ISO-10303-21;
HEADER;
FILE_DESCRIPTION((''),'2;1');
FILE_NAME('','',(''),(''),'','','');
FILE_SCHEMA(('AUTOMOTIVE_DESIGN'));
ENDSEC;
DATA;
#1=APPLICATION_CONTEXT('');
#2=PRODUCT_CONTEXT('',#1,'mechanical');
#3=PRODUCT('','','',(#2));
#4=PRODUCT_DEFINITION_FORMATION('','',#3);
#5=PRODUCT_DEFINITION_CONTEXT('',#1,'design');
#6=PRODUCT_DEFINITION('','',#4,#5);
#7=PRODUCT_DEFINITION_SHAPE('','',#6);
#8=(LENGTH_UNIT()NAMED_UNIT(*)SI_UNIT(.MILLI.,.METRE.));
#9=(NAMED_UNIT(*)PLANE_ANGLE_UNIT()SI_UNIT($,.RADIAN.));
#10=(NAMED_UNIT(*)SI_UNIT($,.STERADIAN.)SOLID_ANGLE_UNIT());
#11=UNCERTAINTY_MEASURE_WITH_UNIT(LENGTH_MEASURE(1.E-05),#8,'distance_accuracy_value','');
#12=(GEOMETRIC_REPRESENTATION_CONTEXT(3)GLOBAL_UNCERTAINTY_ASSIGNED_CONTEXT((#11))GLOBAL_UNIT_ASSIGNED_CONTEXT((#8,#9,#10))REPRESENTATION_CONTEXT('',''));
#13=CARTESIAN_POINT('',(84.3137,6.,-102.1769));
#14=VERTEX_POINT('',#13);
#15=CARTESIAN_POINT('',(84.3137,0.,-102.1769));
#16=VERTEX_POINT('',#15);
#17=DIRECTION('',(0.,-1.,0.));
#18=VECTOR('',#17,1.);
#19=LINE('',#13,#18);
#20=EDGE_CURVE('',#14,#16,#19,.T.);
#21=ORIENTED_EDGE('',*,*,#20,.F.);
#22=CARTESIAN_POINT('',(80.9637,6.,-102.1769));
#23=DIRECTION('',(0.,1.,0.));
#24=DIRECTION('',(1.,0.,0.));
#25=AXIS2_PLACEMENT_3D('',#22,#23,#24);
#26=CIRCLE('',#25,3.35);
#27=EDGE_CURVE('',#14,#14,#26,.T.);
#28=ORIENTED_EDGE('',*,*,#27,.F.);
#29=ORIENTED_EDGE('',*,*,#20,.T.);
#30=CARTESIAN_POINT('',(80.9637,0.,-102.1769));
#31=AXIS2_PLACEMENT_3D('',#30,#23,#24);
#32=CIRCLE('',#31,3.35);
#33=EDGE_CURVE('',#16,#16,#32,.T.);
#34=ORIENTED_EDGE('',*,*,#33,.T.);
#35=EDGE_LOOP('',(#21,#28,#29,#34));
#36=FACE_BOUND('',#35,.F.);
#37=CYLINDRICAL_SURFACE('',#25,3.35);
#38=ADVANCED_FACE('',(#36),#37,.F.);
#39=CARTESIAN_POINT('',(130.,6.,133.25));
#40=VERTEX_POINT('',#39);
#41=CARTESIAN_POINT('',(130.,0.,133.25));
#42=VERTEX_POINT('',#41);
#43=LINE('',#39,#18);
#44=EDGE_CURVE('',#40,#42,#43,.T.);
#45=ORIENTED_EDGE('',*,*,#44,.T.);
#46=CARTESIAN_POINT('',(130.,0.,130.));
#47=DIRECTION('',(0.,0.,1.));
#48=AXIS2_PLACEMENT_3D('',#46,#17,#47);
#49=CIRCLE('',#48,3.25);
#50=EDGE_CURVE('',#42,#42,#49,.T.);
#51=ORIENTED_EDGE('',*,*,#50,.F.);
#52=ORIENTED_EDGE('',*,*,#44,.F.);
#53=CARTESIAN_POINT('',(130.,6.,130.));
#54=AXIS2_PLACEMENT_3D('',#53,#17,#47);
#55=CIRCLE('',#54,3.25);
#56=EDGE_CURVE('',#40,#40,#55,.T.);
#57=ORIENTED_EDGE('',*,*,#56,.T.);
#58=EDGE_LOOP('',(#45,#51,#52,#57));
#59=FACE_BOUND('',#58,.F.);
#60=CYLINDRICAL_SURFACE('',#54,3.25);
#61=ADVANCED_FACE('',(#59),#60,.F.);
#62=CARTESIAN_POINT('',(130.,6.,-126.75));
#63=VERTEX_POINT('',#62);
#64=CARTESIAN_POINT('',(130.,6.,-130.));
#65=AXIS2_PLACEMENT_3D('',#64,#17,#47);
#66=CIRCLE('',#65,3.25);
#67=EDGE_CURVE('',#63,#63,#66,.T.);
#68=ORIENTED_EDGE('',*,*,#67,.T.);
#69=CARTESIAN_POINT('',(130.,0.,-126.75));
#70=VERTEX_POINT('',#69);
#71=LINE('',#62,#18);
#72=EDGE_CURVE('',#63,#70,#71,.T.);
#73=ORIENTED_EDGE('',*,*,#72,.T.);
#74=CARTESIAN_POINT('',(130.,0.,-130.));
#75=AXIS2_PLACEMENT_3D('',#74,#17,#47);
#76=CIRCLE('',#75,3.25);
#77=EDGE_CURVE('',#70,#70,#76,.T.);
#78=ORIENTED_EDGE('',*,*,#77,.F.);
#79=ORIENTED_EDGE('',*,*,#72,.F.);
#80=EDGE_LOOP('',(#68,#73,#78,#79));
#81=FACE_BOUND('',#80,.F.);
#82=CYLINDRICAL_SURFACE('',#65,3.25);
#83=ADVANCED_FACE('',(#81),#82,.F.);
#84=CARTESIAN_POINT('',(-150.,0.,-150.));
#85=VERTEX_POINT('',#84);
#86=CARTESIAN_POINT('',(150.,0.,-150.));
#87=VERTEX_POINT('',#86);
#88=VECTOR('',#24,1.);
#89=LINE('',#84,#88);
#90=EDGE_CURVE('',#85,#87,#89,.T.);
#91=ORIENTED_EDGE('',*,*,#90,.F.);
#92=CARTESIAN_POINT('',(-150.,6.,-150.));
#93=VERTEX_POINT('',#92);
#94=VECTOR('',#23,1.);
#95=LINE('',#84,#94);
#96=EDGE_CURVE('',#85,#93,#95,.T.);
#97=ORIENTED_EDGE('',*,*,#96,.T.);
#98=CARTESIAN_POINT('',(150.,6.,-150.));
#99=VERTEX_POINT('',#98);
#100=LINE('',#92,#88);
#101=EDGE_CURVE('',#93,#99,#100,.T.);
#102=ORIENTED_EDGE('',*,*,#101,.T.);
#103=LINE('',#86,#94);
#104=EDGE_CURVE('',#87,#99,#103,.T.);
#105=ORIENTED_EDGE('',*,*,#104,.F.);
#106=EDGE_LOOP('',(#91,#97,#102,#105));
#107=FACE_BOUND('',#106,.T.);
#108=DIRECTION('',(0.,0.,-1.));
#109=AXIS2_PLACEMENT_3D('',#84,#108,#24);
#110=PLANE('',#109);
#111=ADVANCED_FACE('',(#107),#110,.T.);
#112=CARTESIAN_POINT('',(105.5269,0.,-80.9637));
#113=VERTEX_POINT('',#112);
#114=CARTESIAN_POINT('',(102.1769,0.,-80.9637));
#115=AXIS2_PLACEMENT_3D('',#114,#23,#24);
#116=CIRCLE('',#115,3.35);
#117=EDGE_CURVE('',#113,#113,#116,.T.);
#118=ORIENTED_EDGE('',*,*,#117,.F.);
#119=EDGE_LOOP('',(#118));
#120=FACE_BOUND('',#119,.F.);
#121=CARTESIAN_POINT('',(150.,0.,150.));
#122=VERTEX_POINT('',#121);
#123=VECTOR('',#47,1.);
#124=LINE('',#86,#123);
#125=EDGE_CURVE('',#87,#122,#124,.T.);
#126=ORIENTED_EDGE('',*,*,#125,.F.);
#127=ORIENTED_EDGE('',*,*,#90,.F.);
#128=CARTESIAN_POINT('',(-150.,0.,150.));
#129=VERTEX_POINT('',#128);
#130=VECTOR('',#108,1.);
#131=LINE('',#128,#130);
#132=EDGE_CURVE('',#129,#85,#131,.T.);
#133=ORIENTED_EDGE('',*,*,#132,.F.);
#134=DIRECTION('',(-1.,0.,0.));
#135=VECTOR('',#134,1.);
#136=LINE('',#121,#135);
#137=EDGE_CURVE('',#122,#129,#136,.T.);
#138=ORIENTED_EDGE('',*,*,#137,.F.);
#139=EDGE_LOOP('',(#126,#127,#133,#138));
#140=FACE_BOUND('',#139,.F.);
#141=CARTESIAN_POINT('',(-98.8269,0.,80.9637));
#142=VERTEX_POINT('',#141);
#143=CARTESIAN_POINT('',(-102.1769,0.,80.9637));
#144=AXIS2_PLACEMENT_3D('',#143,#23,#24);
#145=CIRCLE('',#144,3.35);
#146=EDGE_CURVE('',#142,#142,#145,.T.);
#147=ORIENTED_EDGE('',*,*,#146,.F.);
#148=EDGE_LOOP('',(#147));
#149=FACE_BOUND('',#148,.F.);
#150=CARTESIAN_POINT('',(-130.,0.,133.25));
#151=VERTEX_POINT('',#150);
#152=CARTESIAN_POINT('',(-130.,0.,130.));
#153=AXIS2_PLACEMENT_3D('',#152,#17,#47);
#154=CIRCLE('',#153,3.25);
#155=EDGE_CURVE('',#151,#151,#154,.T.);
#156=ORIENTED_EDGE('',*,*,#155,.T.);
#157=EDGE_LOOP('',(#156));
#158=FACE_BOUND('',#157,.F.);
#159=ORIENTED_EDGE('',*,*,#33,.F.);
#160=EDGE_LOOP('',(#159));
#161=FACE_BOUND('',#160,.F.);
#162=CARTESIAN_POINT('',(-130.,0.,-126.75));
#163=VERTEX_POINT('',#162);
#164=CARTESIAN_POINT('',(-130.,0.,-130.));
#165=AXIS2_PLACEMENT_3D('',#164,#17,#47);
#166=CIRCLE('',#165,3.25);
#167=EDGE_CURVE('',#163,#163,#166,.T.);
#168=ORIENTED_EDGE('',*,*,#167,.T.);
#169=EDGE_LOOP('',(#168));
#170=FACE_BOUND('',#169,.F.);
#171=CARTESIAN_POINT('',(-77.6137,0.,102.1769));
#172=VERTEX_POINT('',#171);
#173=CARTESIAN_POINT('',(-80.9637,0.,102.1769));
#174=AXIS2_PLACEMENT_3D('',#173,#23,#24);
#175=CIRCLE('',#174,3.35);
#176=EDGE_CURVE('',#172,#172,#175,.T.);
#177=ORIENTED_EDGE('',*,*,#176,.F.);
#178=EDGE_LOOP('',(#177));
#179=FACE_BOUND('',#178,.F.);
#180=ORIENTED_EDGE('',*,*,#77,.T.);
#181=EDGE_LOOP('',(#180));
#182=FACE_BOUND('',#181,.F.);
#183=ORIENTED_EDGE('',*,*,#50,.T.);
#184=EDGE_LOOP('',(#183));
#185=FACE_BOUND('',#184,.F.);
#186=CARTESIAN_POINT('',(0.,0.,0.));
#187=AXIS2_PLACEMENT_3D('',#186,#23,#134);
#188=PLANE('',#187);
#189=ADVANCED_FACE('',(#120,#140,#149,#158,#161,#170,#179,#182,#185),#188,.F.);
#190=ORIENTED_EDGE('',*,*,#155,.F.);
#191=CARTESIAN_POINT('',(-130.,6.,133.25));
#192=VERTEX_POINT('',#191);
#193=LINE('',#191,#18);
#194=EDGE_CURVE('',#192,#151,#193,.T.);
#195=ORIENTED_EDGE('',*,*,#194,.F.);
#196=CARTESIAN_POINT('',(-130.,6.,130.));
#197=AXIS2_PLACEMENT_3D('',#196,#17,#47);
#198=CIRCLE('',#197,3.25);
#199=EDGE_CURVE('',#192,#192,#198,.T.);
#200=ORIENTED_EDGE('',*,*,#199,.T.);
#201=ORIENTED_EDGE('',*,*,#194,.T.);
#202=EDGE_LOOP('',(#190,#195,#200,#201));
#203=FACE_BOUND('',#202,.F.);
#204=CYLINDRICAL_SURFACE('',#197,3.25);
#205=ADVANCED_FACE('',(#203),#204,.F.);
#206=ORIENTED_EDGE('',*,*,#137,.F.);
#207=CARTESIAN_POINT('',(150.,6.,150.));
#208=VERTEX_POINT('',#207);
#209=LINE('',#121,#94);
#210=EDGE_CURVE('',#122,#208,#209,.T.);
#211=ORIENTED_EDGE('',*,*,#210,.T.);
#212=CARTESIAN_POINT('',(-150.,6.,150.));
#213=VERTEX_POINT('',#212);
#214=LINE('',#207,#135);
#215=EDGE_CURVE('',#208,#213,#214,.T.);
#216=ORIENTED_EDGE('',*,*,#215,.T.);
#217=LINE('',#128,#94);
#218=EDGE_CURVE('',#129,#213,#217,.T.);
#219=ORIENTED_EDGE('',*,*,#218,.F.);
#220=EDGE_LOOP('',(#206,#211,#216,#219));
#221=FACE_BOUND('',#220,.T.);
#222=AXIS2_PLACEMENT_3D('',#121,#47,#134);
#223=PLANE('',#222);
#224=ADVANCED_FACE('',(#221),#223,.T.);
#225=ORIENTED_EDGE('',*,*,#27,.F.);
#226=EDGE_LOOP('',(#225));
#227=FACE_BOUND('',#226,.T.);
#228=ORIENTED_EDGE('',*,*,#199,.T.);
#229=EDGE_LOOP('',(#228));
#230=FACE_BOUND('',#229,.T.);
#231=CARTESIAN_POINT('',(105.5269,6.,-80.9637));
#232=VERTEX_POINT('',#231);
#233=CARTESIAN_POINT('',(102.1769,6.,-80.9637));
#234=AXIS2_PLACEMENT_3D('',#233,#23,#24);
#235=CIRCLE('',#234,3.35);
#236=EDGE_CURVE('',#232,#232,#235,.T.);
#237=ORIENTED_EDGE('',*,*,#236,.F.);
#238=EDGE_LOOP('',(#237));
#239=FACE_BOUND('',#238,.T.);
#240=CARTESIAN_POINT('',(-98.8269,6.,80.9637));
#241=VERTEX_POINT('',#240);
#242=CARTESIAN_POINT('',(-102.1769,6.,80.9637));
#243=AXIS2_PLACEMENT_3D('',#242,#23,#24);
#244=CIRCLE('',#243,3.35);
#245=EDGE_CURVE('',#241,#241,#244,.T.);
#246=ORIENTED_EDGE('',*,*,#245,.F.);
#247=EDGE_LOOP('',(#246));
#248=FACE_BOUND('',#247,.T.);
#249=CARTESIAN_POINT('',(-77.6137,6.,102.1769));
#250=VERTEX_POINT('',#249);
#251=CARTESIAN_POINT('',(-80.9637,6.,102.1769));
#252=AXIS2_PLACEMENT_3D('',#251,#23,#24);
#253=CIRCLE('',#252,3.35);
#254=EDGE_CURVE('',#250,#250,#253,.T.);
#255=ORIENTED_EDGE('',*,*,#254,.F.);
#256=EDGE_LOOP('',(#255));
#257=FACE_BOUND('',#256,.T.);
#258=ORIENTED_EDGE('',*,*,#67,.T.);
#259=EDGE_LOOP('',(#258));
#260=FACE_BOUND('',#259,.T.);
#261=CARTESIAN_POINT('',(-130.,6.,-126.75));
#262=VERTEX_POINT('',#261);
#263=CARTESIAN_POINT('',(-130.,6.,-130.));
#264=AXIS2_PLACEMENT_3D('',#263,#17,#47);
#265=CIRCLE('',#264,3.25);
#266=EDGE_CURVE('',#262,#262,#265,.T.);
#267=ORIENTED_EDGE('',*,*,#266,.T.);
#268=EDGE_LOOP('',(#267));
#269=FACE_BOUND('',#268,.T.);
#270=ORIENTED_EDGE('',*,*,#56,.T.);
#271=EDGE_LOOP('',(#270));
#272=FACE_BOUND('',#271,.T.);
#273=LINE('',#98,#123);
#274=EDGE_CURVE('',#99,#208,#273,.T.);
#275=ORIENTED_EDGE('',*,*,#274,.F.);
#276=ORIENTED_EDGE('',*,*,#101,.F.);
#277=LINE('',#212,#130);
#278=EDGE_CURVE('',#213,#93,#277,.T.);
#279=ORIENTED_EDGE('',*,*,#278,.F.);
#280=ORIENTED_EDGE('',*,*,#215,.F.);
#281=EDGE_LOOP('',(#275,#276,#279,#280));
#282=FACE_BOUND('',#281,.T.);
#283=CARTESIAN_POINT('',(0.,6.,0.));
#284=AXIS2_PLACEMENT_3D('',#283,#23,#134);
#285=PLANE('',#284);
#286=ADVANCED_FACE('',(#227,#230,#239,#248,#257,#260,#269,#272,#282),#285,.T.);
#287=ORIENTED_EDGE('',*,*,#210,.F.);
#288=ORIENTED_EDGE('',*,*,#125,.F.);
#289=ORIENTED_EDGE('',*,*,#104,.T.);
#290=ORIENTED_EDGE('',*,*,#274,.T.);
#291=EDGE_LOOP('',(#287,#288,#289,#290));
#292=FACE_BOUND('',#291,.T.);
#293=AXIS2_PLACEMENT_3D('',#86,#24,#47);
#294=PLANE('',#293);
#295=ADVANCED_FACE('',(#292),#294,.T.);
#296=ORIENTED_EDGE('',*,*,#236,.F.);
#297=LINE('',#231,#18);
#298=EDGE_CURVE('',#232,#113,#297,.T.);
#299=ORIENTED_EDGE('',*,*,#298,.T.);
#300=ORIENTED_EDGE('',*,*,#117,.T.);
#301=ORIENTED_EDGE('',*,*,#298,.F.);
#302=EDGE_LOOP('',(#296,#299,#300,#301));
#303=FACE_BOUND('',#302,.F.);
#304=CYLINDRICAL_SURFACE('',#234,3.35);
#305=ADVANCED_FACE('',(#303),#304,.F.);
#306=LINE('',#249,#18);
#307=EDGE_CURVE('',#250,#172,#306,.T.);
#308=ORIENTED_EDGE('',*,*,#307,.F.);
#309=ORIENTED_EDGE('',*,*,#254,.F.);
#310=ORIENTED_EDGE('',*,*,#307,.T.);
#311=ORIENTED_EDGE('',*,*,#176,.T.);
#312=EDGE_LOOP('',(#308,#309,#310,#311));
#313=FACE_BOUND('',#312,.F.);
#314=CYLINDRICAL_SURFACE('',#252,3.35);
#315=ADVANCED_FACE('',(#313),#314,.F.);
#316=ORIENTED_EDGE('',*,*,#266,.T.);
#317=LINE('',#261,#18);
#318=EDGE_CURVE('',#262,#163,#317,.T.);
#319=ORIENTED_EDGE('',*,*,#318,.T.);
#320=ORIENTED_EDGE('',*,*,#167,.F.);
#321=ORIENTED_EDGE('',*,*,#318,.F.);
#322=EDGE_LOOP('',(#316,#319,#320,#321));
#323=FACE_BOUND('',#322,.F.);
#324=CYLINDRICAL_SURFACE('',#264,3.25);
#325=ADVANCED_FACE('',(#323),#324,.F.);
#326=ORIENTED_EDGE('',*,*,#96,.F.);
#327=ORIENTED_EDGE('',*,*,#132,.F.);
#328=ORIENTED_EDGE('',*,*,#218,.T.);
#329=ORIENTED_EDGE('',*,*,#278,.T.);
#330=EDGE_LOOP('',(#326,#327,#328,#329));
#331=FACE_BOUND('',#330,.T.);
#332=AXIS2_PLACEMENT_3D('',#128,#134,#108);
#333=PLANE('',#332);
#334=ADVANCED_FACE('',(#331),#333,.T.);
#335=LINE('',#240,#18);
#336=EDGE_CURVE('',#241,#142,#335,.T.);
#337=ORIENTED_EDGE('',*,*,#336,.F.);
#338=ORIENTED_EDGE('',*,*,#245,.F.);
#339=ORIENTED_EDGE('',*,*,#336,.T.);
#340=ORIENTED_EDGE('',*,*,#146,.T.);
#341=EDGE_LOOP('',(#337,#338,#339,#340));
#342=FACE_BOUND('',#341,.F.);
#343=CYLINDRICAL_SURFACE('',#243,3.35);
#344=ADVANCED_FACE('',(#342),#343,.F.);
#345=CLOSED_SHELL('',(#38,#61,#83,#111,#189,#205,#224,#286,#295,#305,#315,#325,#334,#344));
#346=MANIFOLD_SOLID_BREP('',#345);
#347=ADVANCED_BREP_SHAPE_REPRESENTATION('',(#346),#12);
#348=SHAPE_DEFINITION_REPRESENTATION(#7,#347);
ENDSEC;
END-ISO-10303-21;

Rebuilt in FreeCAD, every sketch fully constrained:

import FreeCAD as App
import Part
import Sketcher
from FreeCAD import Vector

doc = App.newDocument("Part")
body = doc.addObject("PartDesign::Body", "Body")

sketch1 = body.newObject("Sketcher::SketchObject", "Sketch")
sketch1.AttachmentSupport = (doc.getObject("XZ_Plane"), [""])
sketch1.MapMode = "FlatFace"
sketch1.addGeometry(Part.LineSegment(Vector(-150, 150, 0), Vector(150, 150, 0)), False)
sketch1.addGeometry(Part.LineSegment(Vector(150, 150, 0), Vector(150, -150, 0)), False)
sketch1.addGeometry(Part.LineSegment(Vector(150, -150, 0), Vector(-150, -150, 0)), False)
sketch1.addGeometry(Part.LineSegment(Vector(-150, -150, 0), Vector(-150, 150, 0)), False)
sketch1.addConstraint(Sketcher.Constraint("Coincident", 0, 2, 1, 1))
sketch1.addConstraint(Sketcher.Constraint("Coincident", 1, 2, 2, 1))
sketch1.addConstraint(Sketcher.Constraint("Coincident", 2, 2, 3, 1))
sketch1.addConstraint(Sketcher.Constraint("Coincident", 3, 2, 0, 1))
sketch1.addConstraint(Sketcher.Constraint("Horizontal", 0))
sketch1.addConstraint(Sketcher.Constraint("Vertical", 1))
sketch1.addConstraint(Sketcher.Constraint("Horizontal", 2))
sketch1.addConstraint(Sketcher.Constraint("Vertical", 3))
sketch1.addConstraint(Sketcher.Constraint("Symmetric", 0, 2, 2, 2, -1, 1))
sketch1.addConstraint(Sketcher.Constraint("Equal", 2, 1))
sketch1.addConstraint(Sketcher.Constraint("DistanceX", 0, 1, 0, 2, 300.0))
pad1 = body.newObject("PartDesign::Pad", "Pad")
pad1.Profile = sketch1
pad1.Length = 6
pad1.Reversed = True

sketch2 = body.newObject("Sketcher::SketchObject", "Sketch001")
sketch2.AttachmentSupport = (doc.getObject("XZ_Plane"), [""])
sketch2.MapMode = "FlatFace"
sketch2.AttachmentOffset = App.Placement(Vector(0, 0, -6), App.Rotation())
sketch2.addGeometry(Part.Circle(Vector(-102.2, 81, 0), Vector(0, 0, 1), 3.4), False)
sketch2.addGeometry(Part.Circle(Vector(-81, 102.2, 0), Vector(0, 0, 1), 3.4), False)
sketch2.addGeometry(Part.Circle(Vector(81, -102.2, 0), Vector(0, 0, 1), 3.4), False)
sketch2.addGeometry(Part.Circle(Vector(102.2, -81, 0), Vector(0, 0, 1), 3.4), False)
sketch2.addConstraint(Sketcher.Constraint("Equal", 0, 1))
sketch2.addConstraint(Sketcher.Constraint("Equal", 1, 2))
sketch2.addConstraint(Sketcher.Constraint("Equal", 2, 3))
sketch2.addConstraint(Sketcher.Constraint("Symmetric", 1, 3, 2, 3, -1, 1))
sketch2.addConstraint(Sketcher.Constraint("Symmetric", 0, 3, 3, 3, -1, 1))
sketch2.addConstraint(Sketcher.Constraint("Diameter", 0, 6.7))
sketch2.addConstraint(Sketcher.Constraint("DistanceX", 0, 3, -1, 1, 102.177))
sketch2.addConstraint(Sketcher.Constraint("DistanceY", -1, 1, 1, 3, 102.177))
sketch2.addConstraint(Sketcher.Constraint("DistanceY", -1, 1, 0, 3, 80.9637))
sketch2.addConstraint(Sketcher.Constraint("DistanceX", 1, 3, -1, 1, 80.9637))
pocket1 = body.newObject("PartDesign::Pocket", "Pocket")
pocket1.Profile = sketch2
pocket1.Type = "ThroughAll"
pocket1.Reversed = True

sketch3 = body.newObject("Sketcher::SketchObject", "Sketch002")
sketch3.AttachmentSupport = (doc.getObject("XZ_Plane"), [""])
sketch3.MapMode = "FlatFace"
sketch3.AttachmentOffset = App.Placement(Vector(0, 0, -6), App.Rotation())
sketch3.addGeometry(Part.Circle(Vector(-130, 130, 0), Vector(0, 0, 1), 3.2), False)
sketch3.addGeometry(Part.Circle(Vector(-130, -130, 0), Vector(0, 0, 1), 3.2), False)
sketch3.addGeometry(Part.Circle(Vector(130, -130, 0), Vector(0, 0, 1), 3.2), False)
sketch3.addGeometry(Part.Circle(Vector(130, 130, 0), Vector(0, 0, 1), 3.2), False)
sketch3.addConstraint(Sketcher.Constraint("Equal", 0, 1))
sketch3.addConstraint(Sketcher.Constraint("Equal", 1, 2))
sketch3.addConstraint(Sketcher.Constraint("Equal", 2, 3))
sketch3.addConstraint(Sketcher.Constraint("Symmetric", 0, 3, 2, 3, -1, 1))
sketch3.addConstraint(Sketcher.Constraint("Symmetric", 1, 3, 3, 3, -1, 1))
sketch3.addConstraint(Sketcher.Constraint("Symmetric", 1, 3, 2, 3, -2))
sketch3.addConstraint(Sketcher.Constraint("Diameter", 0, 6.5))
sketch3.addConstraint(Sketcher.Constraint("DistanceX", 0, 3, -1, 1, 130.0))
sketch3.addConstraint(Sketcher.Constraint("DistanceY", -1, 1, 0, 3, 130.0))
doc.recompute()
hole = body.newObject("PartDesign::Hole", "Hole")
hole.Profile = sketch3
hole.ThreadType = "None"
hole.Diameter = 6.5
hole.DepthType = "ThroughAll"
hole.Reversed = True

doc.recompute()
